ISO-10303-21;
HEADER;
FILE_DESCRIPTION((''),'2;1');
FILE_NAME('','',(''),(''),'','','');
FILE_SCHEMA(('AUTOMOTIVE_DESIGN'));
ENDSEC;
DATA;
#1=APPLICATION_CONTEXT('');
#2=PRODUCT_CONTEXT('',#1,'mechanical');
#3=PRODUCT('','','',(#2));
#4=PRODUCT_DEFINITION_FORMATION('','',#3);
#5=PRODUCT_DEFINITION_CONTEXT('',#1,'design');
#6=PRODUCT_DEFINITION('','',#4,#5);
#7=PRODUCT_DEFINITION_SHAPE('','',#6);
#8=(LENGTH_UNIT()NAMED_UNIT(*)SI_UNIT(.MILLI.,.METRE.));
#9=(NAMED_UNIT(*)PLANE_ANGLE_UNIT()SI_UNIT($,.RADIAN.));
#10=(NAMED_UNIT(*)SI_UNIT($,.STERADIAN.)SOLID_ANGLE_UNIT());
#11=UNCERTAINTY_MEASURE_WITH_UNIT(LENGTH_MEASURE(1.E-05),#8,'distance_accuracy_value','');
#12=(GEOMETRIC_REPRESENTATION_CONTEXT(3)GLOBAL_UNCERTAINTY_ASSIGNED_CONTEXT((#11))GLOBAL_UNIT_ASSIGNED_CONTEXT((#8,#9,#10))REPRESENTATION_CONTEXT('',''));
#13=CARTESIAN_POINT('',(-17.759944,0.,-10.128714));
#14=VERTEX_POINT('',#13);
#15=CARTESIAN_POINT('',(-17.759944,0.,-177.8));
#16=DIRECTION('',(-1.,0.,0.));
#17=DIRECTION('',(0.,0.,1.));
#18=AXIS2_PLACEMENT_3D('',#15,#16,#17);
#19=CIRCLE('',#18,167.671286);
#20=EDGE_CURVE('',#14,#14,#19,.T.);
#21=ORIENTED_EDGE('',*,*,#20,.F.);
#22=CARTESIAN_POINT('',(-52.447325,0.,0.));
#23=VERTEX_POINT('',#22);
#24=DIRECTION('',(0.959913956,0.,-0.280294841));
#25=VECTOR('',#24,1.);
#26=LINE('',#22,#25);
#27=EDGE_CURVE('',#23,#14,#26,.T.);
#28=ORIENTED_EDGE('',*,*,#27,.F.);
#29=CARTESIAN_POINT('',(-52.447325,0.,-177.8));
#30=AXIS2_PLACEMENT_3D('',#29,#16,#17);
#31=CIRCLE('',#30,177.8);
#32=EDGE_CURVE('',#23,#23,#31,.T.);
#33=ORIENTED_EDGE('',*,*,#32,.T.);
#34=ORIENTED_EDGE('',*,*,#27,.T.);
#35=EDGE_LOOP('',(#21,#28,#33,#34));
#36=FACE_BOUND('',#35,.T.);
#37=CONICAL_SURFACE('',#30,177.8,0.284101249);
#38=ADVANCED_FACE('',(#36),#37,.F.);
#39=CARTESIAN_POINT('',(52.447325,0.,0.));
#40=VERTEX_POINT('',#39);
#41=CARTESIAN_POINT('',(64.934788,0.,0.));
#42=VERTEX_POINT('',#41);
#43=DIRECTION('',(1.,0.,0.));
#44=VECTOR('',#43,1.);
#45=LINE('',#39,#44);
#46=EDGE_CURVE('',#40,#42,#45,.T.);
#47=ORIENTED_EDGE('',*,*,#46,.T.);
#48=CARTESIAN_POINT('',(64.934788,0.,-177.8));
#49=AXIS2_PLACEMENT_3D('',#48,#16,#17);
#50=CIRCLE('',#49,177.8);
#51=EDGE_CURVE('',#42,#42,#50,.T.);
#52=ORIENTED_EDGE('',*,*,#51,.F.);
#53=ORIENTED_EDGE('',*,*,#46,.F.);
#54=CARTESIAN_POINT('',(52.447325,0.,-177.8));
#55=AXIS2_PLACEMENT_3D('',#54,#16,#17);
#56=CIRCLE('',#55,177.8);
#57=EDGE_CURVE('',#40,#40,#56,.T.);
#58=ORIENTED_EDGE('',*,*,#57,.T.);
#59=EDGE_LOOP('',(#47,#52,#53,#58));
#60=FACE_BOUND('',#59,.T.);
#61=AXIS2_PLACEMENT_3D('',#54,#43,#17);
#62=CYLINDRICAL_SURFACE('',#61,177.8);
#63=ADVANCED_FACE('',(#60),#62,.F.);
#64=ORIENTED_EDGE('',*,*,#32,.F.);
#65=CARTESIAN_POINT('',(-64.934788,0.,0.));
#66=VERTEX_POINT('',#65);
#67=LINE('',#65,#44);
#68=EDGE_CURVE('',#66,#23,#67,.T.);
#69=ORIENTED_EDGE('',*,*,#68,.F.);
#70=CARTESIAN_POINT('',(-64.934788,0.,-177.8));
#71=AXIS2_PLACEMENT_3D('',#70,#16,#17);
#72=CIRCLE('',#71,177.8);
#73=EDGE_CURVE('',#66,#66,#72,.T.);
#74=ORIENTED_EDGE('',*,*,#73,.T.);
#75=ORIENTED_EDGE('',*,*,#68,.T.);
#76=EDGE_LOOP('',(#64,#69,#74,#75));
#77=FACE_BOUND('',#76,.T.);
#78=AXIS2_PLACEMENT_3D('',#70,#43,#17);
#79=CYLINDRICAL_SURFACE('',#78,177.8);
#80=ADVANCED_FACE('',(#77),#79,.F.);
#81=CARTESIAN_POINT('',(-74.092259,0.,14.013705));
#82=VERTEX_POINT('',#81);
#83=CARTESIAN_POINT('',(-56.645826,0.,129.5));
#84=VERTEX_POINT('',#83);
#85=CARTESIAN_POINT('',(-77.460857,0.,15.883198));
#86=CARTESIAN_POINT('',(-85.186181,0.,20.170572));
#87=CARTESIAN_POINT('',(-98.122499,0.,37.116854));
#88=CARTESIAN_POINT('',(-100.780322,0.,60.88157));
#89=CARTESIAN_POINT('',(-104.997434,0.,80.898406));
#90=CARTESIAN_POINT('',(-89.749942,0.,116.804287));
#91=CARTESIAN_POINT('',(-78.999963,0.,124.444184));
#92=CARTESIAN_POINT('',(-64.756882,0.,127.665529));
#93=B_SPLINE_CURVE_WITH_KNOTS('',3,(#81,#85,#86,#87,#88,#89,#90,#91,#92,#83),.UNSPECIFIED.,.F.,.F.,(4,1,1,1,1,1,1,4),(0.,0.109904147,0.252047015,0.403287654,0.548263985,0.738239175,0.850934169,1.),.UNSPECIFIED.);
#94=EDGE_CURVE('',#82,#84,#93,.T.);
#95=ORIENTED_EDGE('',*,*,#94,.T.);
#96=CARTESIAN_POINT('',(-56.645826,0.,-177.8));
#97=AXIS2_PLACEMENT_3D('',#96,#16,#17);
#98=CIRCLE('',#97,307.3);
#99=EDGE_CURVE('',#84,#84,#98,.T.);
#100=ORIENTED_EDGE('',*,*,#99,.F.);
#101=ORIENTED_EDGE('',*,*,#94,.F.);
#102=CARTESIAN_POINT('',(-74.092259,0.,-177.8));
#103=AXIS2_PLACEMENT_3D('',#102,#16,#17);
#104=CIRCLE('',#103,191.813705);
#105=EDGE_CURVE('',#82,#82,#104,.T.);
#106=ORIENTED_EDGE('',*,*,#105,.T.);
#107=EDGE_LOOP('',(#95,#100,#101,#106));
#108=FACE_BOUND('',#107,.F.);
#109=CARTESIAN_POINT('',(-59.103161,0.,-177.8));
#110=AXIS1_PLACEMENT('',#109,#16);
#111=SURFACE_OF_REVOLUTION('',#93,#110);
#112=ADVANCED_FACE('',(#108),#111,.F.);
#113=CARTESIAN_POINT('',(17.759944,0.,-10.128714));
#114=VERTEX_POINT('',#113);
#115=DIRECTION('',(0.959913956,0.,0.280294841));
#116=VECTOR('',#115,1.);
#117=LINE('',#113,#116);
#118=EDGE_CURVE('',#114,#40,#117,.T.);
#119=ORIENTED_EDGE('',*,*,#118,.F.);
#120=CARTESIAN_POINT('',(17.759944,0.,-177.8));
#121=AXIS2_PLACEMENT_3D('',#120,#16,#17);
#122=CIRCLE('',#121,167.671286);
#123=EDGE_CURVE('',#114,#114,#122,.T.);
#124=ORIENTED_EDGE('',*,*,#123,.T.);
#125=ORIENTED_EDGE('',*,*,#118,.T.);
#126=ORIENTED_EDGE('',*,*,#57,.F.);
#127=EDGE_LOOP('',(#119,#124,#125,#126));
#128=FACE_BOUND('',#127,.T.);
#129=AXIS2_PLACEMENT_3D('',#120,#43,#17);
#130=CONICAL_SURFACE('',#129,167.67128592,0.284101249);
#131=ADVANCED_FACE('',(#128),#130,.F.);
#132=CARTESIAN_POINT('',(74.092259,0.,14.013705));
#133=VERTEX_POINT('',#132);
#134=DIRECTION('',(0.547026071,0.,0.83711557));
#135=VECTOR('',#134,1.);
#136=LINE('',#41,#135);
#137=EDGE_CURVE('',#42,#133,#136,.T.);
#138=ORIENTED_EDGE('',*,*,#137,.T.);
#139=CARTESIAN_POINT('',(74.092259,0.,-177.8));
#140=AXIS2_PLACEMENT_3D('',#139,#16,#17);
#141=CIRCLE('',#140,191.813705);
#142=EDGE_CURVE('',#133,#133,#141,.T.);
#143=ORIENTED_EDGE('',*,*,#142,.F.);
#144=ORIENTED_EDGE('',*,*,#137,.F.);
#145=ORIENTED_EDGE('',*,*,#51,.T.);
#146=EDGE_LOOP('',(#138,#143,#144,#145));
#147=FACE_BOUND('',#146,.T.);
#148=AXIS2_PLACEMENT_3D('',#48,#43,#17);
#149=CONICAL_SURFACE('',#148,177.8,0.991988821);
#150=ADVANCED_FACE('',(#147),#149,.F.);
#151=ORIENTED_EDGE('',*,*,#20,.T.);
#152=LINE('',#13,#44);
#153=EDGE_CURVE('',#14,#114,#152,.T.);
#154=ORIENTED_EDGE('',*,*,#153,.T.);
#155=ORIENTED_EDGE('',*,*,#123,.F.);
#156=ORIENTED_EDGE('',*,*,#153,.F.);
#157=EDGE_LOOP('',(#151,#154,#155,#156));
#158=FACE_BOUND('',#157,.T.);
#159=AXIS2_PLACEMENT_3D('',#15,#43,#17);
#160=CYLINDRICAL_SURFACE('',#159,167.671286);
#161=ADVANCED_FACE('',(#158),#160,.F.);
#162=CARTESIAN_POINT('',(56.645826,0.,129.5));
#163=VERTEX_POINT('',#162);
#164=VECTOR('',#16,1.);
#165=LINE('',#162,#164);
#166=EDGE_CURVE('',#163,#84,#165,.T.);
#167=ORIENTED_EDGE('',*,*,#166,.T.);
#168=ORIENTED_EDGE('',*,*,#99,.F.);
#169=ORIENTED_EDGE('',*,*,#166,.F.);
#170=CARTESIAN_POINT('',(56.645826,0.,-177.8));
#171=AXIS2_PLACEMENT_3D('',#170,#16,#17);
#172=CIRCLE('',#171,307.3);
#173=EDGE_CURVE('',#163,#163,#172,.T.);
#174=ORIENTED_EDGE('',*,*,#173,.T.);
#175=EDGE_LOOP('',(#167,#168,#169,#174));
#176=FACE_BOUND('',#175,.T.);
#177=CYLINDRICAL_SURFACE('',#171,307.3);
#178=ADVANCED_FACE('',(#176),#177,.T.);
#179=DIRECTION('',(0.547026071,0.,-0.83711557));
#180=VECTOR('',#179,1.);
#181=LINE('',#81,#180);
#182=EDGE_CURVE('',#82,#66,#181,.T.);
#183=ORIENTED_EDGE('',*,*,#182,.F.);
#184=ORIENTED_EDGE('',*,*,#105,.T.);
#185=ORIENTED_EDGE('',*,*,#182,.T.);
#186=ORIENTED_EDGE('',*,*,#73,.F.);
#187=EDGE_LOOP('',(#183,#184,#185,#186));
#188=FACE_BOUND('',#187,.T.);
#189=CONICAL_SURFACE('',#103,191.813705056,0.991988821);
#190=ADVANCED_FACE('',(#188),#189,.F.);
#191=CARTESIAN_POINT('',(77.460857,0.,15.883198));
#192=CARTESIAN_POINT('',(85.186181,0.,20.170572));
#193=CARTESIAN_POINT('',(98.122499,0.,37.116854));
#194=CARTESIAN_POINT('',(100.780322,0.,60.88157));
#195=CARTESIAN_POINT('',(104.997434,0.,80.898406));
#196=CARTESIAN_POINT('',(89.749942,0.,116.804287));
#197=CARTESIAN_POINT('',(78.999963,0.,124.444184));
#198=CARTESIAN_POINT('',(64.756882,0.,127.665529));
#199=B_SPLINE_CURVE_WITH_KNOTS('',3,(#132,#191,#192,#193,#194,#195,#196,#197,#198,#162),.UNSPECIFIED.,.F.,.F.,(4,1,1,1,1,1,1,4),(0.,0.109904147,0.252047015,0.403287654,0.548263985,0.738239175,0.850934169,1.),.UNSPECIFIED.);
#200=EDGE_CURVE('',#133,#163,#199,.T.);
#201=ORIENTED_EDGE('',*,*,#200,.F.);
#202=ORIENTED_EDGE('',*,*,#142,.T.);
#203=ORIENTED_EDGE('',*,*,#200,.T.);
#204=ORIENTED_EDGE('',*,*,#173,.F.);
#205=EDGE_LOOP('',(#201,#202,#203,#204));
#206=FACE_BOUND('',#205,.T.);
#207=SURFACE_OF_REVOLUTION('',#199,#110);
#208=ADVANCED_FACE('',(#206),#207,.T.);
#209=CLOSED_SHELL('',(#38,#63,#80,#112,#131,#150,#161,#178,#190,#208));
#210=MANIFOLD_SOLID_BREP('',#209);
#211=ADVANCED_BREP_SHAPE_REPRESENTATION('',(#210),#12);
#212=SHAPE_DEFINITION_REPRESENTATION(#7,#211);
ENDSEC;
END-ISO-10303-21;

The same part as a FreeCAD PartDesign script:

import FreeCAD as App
import Part
import Sketcher

doc = App.newDocument("Part")
body = doc.addObject("PartDesign::Body", "Body")

sketch1 = body.newObject("Sketcher::SketchObject", "Sketch")
sketch1.AttachmentSupport = (doc.getObject("XZ_Plane"), [""])
sketch1.MapMode = "FlatFace"
sketch1.addGeometry([
    Part.LineSegment(App.Vector(17.759944, -10.128714, 0), App.Vector(52.447325, 0, 0)),
    Part.LineSegment(App.Vector(52.447325, 0, 0), App.Vector(64.934788, 0, 0)),
    Part.LineSegment(App.Vector(64.934788, 0, 0), App.Vector(74.092259, 14.013705, 0)),
    Part.BSplineCurve([App.Vector(74.092259, 14.013705, 0), App.Vector(77.460857, 15.883198, 0), App.Vector(85.186181, 20.170572, 0), App.Vector(98.122499, 37.116854, 0), App.Vector(100.780322, 60.88157, 0), App.Vector(104.997434, 80.898406, 0), App.Vector(89.749942, 116.804287, 0), App.Vector(78.999963, 124.444184, 0), App.Vector(64.756882, 127.665529, 0), App.Vector(56.645826, 129.5, 0)], [4, 1, 1, 1, 1, 1, 1, 4], [0, 0.109904147, 0.252047015, 0.403287654, 0.548263985, 0.738239175, 0.850934169, 1], False, 3, [1, 1, 1, 1, 1, 1, 1, 1, 1, 1], False),
    Part.LineSegment(App.Vector(56.645826, 129.5, 0), App.Vector(-56.645826, 129.5, 0)),
    Part.BSplineCurve([App.Vector(-74.092259, 14.013705, 0), App.Vector(-77.460857, 15.883198, 0), App.Vector(-85.186181, 20.170572, 0), App.Vector(-98.122499, 37.116854, 0), App.Vector(-100.780322, 60.88157, 0), App.Vector(-104.997434, 80.898406, 0), App.Vector(-89.749942, 116.804287, 0), App.Vector(-78.999963, 124.444184, 0), App.Vector(-64.756882, 127.665529, 0), App.Vector(-56.645826, 129.5, 0)], [4, 1, 1, 1, 1, 1, 1, 4], [0, 0.109904147, 0.252047015, 0.403287654, 0.548263985, 0.738239175, 0.850934169, 1], False, 3, [1, 1, 1, 1, 1, 1, 1, 1, 1, 1], False),
    Part.LineSegment(App.Vector(-74.092259, 14.013705, 0), App.Vector(-64.934788, 0, 0)),
    Part.LineSegment(App.Vector(-64.934788, 0, 0), App.Vector(-52.447325, 0, 0)),
    Part.LineSegment(App.Vector(-52.447325, 0, 0), App.Vector(-17.759944, -10.128714, 0)),
    Part.LineSegment(App.Vector(-17.759944, -10.128714, 0), App.Vector(17.759944, -10.128714, 0)),
], False)
sketch1.addGeometry(Part.LineSegment(App.Vector(74.092259, -177.8, 0), App.Vector(-74.092259, -177.8, 0)), True)
sketch1.addConstraint([
    Sketcher.Constraint("Block", 3),
    Sketcher.Constraint("Block", 5),
    Sketcher.Constraint("Coincident", 0, 2, 1, 1),
    Sketcher.Constraint("Coincident", 1, 2, 2, 1),
    Sketcher.Constraint("Coincident", 2, 2, 3, 1),
    Sketcher.Constraint("Coincident", 3, 2, 4, 1),
    Sketcher.Constraint("Coincident", 4, 2, 5, 2),
    Sketcher.Constraint("Coincident", 5, 1, 6, 1),
    Sketcher.Constraint("Coincident", 6, 2, 7, 1),
    Sketcher.Constraint("Coincident", 7, 2, 8, 1),
    Sketcher.Constraint("Coincident", 8, 2, 9, 1),
    Sketcher.Constraint("Coincident", 9, 2, 0, 1),
    Sketcher.Constraint("Horizontal", 1),
    Sketcher.Constraint("Horizontal", 7),
    Sketcher.Constraint("Horizontal", 9),
    Sketcher.Constraint("Horizontal", 10),
    Sketcher.Constraint("Symmetric", 1, 2, 6, 2, -1, 1),
    Sketcher.Constraint("Symmetric", 0, 2, 7, 2, -2),
    Sketcher.Constraint("Vertical", 2, 2, 10, 1),
    Sketcher.Constraint("Equal", 0, 8),
    Sketcher.Constraint("DistanceY", 10, 1, -1, 1, 177.8),
    Sketcher.Constraint("DistanceX", 10, 2, 10, 1, 148.184518),
    Sketcher.Constraint("DistanceX", 4, 2, 7, 2, 4.1985),
    Sketcher.Constraint("DistanceX", 1, 1, 1, 2, 12.487463),
    Sketcher.Constraint("DistanceX", 9, 1, 9, 2, 35.519888),
    Sketcher.Constraint("DistanceY", 8, 2, 2, 2, 24.142419),
])
revolution = body.newObject("PartDesign::Revolution", "Revolution")
revolution.Profile = sketch1
revolution.ReferenceAxis = (sketch1, ["Axis0"])
revolution.Angle = 360

doc.recompute()
